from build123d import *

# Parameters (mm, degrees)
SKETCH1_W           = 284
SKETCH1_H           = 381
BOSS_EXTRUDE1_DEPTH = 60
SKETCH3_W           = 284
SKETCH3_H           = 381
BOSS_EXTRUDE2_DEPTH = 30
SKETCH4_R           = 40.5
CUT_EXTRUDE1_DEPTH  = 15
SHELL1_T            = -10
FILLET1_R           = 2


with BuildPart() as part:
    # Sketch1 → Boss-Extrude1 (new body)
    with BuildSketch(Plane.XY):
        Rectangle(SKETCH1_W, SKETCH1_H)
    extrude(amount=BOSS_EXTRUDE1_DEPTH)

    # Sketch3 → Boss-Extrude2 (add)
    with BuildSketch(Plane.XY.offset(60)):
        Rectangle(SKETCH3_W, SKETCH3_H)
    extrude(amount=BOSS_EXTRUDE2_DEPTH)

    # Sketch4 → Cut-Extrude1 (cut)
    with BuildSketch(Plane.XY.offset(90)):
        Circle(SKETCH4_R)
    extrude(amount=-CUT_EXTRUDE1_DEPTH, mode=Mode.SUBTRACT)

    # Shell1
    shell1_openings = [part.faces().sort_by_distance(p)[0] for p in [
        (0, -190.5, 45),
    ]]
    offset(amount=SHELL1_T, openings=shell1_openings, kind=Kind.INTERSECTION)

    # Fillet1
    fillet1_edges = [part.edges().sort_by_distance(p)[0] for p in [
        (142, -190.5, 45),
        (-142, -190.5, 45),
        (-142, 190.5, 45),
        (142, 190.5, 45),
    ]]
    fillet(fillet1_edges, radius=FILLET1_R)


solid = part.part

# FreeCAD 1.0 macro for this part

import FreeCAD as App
import Part
import Sketcher
from FreeCAD import Vector


def edges_at(feature, points):
    """Names of the edges that pass closest to the given points."""
    edges = feature.Shape.Edges
    near = lambda p: min(range(len(edges)), key=lambda i: edges[i].distToShape(Part.Vertex(*p))[0])
    return sorted({f"Edge{near(p) + 1}" for p in points})


def faces_at(feature, points):
    """Names of the faces that lie closest to the given points."""
    faces = feature.Shape.Faces
    near = lambda p: min(range(len(faces)), key=lambda i: faces[i].distToShape(Part.Vertex(*p))[0])
    return sorted({f"Face{near(p) + 1}" for p in points})

doc = App.newDocument("Part")
body = doc.addObject("PartDesign::Body", "Body")

# Sketch on XY plane
sketch1 = doc.addObject("Sketcher::SketchObject", "Sketch")
body.addObject(sketch1)
sketch1.AttachmentSupport = (doc.XY_Plane, [""])
sketch1.MapMode = "FlatFace"
sketch1.addGeometry(Part.LineSegment(Vector(-142, 190.5, 0), Vector(-142, -190.5, 0)), False)
sketch1.addGeometry(Part.LineSegment(Vector(-142, -190.5, 0), Vector(142, -190.5, 0)), False)
sketch1.addGeometry(Part.LineSegment(Vector(142, -190.5, 0), Vector(142, 190.5, 0)), False)
sketch1.addGeometry(Part.LineSegment(Vector(142, 190.5, 0), Vector(-142, 190.5, 0)), False)
sketch1.addConstraint(Sketcher.Constraint("Coincident", 0, 2, 1, 1))
sketch1.addConstraint(Sketcher.Constraint("Coincident", 1, 2, 2, 1))
sketch1.addConstraint(Sketcher.Constraint("Coincident", 2, 2, 3, 1))
sketch1.addConstraint(Sketcher.Constraint("Coincident", 3, 2, 0, 1))
sketch1.addConstraint(Sketcher.Constraint("Vertical", 0))
sketch1.addConstraint(Sketcher.Constraint("Horizontal", 1))
sketch1.addConstraint(Sketcher.Constraint("Vertical", 2))
sketch1.addConstraint(Sketcher.Constraint("Horizontal", 3))
sketch1.addConstraint(Sketcher.Constraint("Symmetric", 0, 2, 2, 2, -1, 1))
sketch1.addConstraint(Sketcher.Constraint("DistanceX", 1, 1, 1, 2, 284.0))
sketch1.addConstraint(Sketcher.Constraint("DistanceY", 0, 2, 0, 1, 381.0))
pad1 = doc.addObject("PartDesign::Pad", "Pad")
body.addObject(pad1)
pad1.Profile = sketch1
pad1.Length = 60

# Sketch on XY plane
sketch2 = doc.addObject("Sketcher::SketchObject", "Sketch001")
body.addObject(sketch2)
sketch2.AttachmentSupport = (doc.XY_Plane, [""])
sketch2.MapMode = "FlatFace"
sketch2.AttachmentOffset = App.Placement(Vector(0, 0, 60), App.Rotation())
sketch2.addGeometry(Part.LineSegment(Vector(-142, 190.5, 0), Vector(-142, -190.5, 0)), False)
sketch2.addGeometry(Part.LineSegment(Vector(-142, -190.5, 0), Vector(142, -190.5, 0)), False)
sketch2.addGeometry(Part.LineSegment(Vector(142, -190.5, 0), Vector(142, 190.5, 0)), False)
sketch2.addGeometry(Part.LineSegment(Vector(142, 190.5, 0), Vector(-142, 190.5, 0)), False)
sketch2.addConstraint(Sketcher.Constraint("Coincident", 0, 2, 1, 1))
sketch2.addConstraint(Sketcher.Constraint("Coincident", 1, 2, 2, 1))
sketch2.addConstraint(Sketcher.Constraint("Coincident", 2, 2, 3, 1))
sketch2.addConstraint(Sketcher.Constraint("Coincident", 3, 2, 0, 1))
sketch2.addConstraint(Sketcher.Constraint("Vertical", 0))
sketch2.addConstraint(Sketcher.Constraint("Horizontal", 1))
sketch2.addConstraint(Sketcher.Constraint("Vertical", 2))
sketch2.addConstraint(Sketcher.Constraint("Horizontal", 3))
sketch2.addConstraint(Sketcher.Constraint("Symmetric", 0, 2, 2, 2, -1, 1))
sketch2.addConstraint(Sketcher.Constraint("DistanceX", 1, 1, 1, 2, 284.0))
sketch2.addConstraint(Sketcher.Constraint("DistanceY", 0, 2, 0, 1, 381.0))
pad2 = doc.addObject("PartDesign::Pad", "Pad001")
body.addObject(pad2)
pad2.Profile = sketch2
pad2.Length = 30

# Sketch on XY plane
sketch3 = doc.addObject("Sketcher::SketchObject", "Sketch002")
body.addObject(sketch3)
sketch3.AttachmentSupport = (doc.XY_Plane, [""])
sketch3.MapMode = "FlatFace"
sketch3.AttachmentOffset = App.Placement(Vector(0, 0, 90), App.Rotation())
sketch3.addGeometry(Part.Circle(Vector(0, 0, 0), Vector(0, 0, 1), 40.5), False)
sketch3.addConstraint(Sketcher.Constraint("Coincident", 0, 3, -1, 1))
sketch3.addConstraint(Sketcher.Constraint("Diameter", 0, 81.0))
pocket1 = doc.addObject("PartDesign::Pocket", "Pocket")
body.addObject(pocket1)
pocket1.Profile = sketch3
pocket1.Length = 15
doc.recompute()

thickness = doc.addObject("PartDesign::Thickness", "Thickness")
body.addObject(thickness)
thickness.Base = (pocket1, faces_at(pocket1, [(0, -190.5, 45)]))
thickness.Value = 10
thickness.Reversed = True
thickness.Join = "Intersection"
doc.recompute()

fillet = doc.addObject("PartDesign::Fillet", "Fillet")
body.addObject(fillet)
fillet.Base = (thickness, edges_at(thickness, [
    (142, -190.5, 45),
    (-142, -190.5, 45),
    (-142, 190.5, 45),
    (142, 190.5, 45),
]))
fillet.Radius = 2

doc.recompute()
